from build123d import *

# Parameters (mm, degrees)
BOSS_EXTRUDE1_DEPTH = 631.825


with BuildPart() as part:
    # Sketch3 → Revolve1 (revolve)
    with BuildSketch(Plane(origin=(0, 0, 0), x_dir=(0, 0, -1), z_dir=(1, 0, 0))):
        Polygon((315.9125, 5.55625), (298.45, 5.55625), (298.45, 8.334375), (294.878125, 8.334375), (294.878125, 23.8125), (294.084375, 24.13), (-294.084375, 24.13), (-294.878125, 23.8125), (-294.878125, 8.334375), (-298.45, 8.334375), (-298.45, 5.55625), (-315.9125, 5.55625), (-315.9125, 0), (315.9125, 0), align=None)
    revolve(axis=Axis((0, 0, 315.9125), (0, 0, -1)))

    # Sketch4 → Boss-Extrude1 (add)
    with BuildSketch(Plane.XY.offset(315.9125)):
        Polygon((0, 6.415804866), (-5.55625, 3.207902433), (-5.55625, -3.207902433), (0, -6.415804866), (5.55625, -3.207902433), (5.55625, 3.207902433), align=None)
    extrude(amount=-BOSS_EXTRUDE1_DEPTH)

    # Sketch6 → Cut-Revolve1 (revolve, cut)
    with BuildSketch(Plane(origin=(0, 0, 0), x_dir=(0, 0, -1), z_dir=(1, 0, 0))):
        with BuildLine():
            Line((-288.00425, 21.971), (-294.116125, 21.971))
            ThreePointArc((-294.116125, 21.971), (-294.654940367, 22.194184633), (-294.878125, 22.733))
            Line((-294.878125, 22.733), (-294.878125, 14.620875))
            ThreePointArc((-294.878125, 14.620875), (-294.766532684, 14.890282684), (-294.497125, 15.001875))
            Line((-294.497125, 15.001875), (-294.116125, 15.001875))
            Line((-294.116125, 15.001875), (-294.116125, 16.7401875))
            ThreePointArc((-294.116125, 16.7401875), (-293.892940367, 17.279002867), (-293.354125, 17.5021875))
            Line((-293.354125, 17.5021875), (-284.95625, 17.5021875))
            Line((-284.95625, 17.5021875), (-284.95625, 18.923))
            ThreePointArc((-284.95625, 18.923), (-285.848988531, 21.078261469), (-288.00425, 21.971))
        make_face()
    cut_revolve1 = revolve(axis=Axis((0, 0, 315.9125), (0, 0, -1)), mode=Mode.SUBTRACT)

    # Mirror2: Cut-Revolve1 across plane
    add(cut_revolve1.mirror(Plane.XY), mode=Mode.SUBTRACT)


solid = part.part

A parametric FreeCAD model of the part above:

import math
import FreeCAD as App
import Part
import Sketcher
Q = App.Units.Quantity

doc = App.newDocument("Part")
body = doc.addObject("PartDesign::Body", "Body")

sketch1 = doc.addObject("Sketcher::SketchObject", "Sketch")
body.addObject(sketch1)
sketch1.AttachmentSupport = (doc.YZ_Plane, [""])
sketch1.MapMode = "FlatFace"
sketch1.addGeometry(Part.LineSegment(App.Vector(5.6, -315.9, 0), App.Vector(5.6, -298.4, 0)), False)
sketch1.addGeometry(Part.LineSegment(App.Vector(5.6, -298.4, 0), App.Vector(8.3, -298.4, 0)), False)
sketch1.addGeometry(Part.LineSegment(App.Vector(8.3, -298.4, 0), App.Vector(8.3, -294.9, 0)), False)
sketch1.addGeometry(Part.LineSegment(App.Vector(8.3, -294.9, 0), App.Vector(23.8, -294.9, 0)), False)
sketch1.addGeometry(Part.LineSegment(App.Vector(23.8, -294.9, 0), App.Vector(24.1, -294.1, 0)), False)
sketch1.addGeometry(Part.LineSegment(App.Vector(24.1, -294.1, 0), App.Vector(24.1, 294.1, 0)), False)
sketch1.addGeometry(Part.LineSegment(App.Vector(24.1, 294.1, 0), App.Vector(23.8, 294.9, 0)), False)
sketch1.addGeometry(Part.LineSegment(App.Vector(23.8, 294.9, 0), App.Vector(8.3, 294.9, 0)), False)
sketch1.addGeometry(Part.LineSegment(App.Vector(8.3, 294.9, 0), App.Vector(8.3, 298.4, 0)), False)
sketch1.addGeometry(Part.LineSegment(App.Vector(8.3, 298.4, 0), App.Vector(5.6, 298.4, 0)), False)
sketch1.addGeometry(Part.LineSegment(App.Vector(5.6, 298.4, 0), App.Vector(5.6, 315.9, 0)), False)
sketch1.addGeometry(Part.LineSegment(App.Vector(5.6, 315.9, 0), App.Vector(0, 315.9, 0)), False)
sketch1.addGeometry(Part.LineSegment(App.Vector(0, 315.9, 0), App.Vector(0, -315.9, 0)), False)
sketch1.addGeometry(Part.LineSegment(App.Vector(0, -315.9, 0), App.Vector(5.6, -315.9, 0)), False)
sketch1.addConstraint(Sketcher.Constraint("Coincident", 0, 2, 1, 1))
sketch1.addConstraint(Sketcher.Constraint("Coincident", 1, 2, 2, 1))
sketch1.addConstraint(Sketcher.Constraint("Coincident", 2, 2, 3, 1))
sketch1.addConstraint(Sketcher.Constraint("Coincident", 3, 2, 4, 1))
sketch1.addConstraint(Sketcher.Constraint("Coincident", 4, 2, 5, 1))
sketch1.addConstraint(Sketcher.Constraint("Coincident", 5, 2, 6, 1))
sketch1.addConstraint(Sketcher.Constraint("Coincident", 6, 2, 7, 1))
sketch1.addConstraint(Sketcher.Constraint("Coincident", 7, 2, 8, 1))
sketch1.addConstraint(Sketcher.Constraint("Coincident", 8, 2, 9, 1))
sketch1.addConstraint(Sketcher.Constraint("Coincident", 9, 2, 10, 1))
sketch1.addConstraint(Sketcher.Constraint("Coincident", 10, 2, 11, 1))
sketch1.addConstraint(Sketcher.Constraint("Coincident", 11, 2, 12, 1))
sketch1.addConstraint(Sketcher.Constraint("Coincident", 12, 2, 13, 1))
sketch1.addConstraint(Sketcher.Constraint("Coincident", 13, 2, 0, 1))
sketch1.addConstraint(Sketcher.Constraint("Vertical", 0))
sketch1.addConstraint(Sketcher.Constraint("Horizontal", 1))
sketch1.addConstraint(Sketcher.Constraint("Vertical", 2))
sketch1.addConstraint(Sketcher.Constraint("Horizontal", 3))
sketch1.addConstraint(Sketcher.Constraint("Vertical", 5))
sketch1.addConstraint(Sketcher.Constraint("Horizontal", 7))
sketch1.addConstraint(Sketcher.Constraint("Vertical", 8))
sketch1.addConstraint(Sketcher.Constraint("Horizontal", 9))
sketch1.addConstraint(Sketcher.Constraint("Vertical", 10))
sketch1.addConstraint(Sketcher.Constraint("Horizontal", 11))
sketch1.addConstraint(Sketcher.Constraint("Vertical", 12))
sketch1.addConstraint(Sketcher.Constraint("Horizontal", 13))
sketch1.addConstraint(Sketcher.Constraint("Symmetric", 11, 2, 12, 2, -1, 1))
sketch1.addConstraint(Sketcher.Constraint("Symmetric", 3, 2, 6, 2, -1))
sketch1.addConstraint(Sketcher.Constraint("Symmetric", 1, 2, 8, 2, -1))
sketch1.addConstraint(Sketcher.Constraint("Vertical", 0, 2, 9, 2))
sketch1.addConstraint(Sketcher.Constraint("Equal", 4, 6))
sketch1.addConstraint(Sketcher.Constraint("DistanceX", 1, 1, 1, 2, Q("0.109375 in")))
sketch1.addConstraint(Sketcher.Constraint("DistanceX", 3, 1, 3, 2, Q("0.609375 in")))
sketch1.addConstraint(Sketcher.Constraint("DistanceX", 11, 2, 11, 1, Q("0.21875 in")))
sketch1.addConstraint(Sketcher.Constraint("DistanceY", 0, 1, 0, 2, Q("0.6875 in")))
sketch1.addConstraint(Sketcher.Constraint("DistanceY", 2, 1, 2, 2, Q("0.140625 in")))
sketch1.addConstraint(Sketcher.Constraint("DistanceY", 5, 1, 5, 2, Q("23.15625 in")))
sketch1.addConstraint(Sketcher.Constraint("DistanceY", 12, 2, 12, 1, Q("24.875 in")))
sketch1.addConstraint(Sketcher.Constraint("DistanceX", -1, 1, 4, 2, Q("0.95 in")))
revolution = doc.addObject("PartDesign::Revolution", "Revolution")
body.addObject(revolution)
revolution.Profile = sketch1
revolution.ReferenceAxis = (sketch1, ["V_Axis"])
revolution.Angle = 360

sketch2 = doc.addObject("Sketcher::SketchObject", "Sketch001")
body.addObject(sketch2)
sketch2.AttachmentSupport = (doc.XY_Plane, [""])
sketch2.MapMode = "FlatFace"
sketch2.AttachmentOffset = App.Placement(App.Vector(0, 0, 12.4375 * 25.4), App.Rotation())
sketch2.addGeometry(Part.LineSegment(App.Vector(0, 6, 0), App.Vector(-6, 3, 0)), False)
sketch2.addGeometry(Part.LineSegment(App.Vector(-6, 3, 0), App.Vector(-6, -3, 0)), False)
sketch2.addGeometry(Part.LineSegment(App.Vector(-6, -3, 0), App.Vector(0, -6, 0)), False)
sketch2.addGeometry(Part.LineSegment(App.Vector(0, -6, 0), App.Vector(6, -3, 0)), False)
sketch2.addGeometry(Part.LineSegment(App.Vector(6, -3, 0), App.Vector(6, 3, 0)), False)
sketch2.addGeometry(Part.LineSegment(App.Vector(6, 3, 0), App.Vector(0, 6, 0)), False)
sketch2.addConstraint(Sketcher.Constraint("Coincident", 0, 2, 1, 1))
sketch2.addConstraint(Sketcher.Constraint("Coincident", 1, 2, 2, 1))
sketch2.addConstraint(Sketcher.Constraint("Coincident", 2, 2, 3, 1))
sketch2.addConstraint(Sketcher.Constraint("Coincident", 3, 2, 4, 1))
sketch2.addConstraint(Sketcher.Constraint("Coincident", 4, 2, 5, 1))
sketch2.addConstraint(Sketcher.Constraint("Coincident", 5, 2, 0, 1))
sketch2.addConstraint(Sketcher.Constraint("Vertical", 1))
sketch2.addConstraint(Sketcher.Constraint("Vertical", 4))
sketch2.addConstraint(Sketcher.Constraint("Symmetric", 0, 2, 3, 2, -1, 1))
sketch2.addConstraint(Sketcher.Constraint("Symmetric", 2, 2, 5, 2, -1, 1))
sketch2.addConstraint(Sketcher.Constraint("PointOnObject", 2, 2, -2))
sketch2.addConstraint(Sketcher.Constraint("Parallel", 2, 5))
sketch2.addConstraint(Sketcher.Constraint("Horizontal", 1, 2, 3, 2))
sketch2.addConstraint(Sketcher.Constraint("Angle", 0, Q("-150 deg")))
sketch2.addConstraint(Sketcher.Constraint("DistanceX", 0, 2, -1, 1, Q("0.21875 in")))
sketch2.addConstraint(Sketcher.Constraint("DistanceY", 1, 2, 1, 1, Q("6.415805 mm")))
pad1 = doc.addObject("PartDesign::Pad", "Pad")
body.addObject(pad1)
pad1.Profile = sketch2
pad1.Length = Q("24.875 in")
pad1.Reversed = True

sketch3 = doc.addObject("Sketcher::SketchObject", "Sketch002")
body.addObject(sketch3)
sketch3.AttachmentSupport = (doc.YZ_Plane, [""])
sketch3.MapMode = "FlatFace"
sketch3.addGeometry(Part.LineSegment(App.Vector(21.97, 288, 0), App.Vector(21.97, 294.12, 0)), False)
sketch3.addGeometry(Part.ArcOfCircle(Part.Circle(App.Vector(22.73, 294.12, 0), App.Vector(0, 0, 1), 0.76), math.radians(90), math.radians(180)), False)
sketch3.addGeometry(Part.LineSegment(App.Vector(22.73, 294.88, 0), App.Vector(14.62, 294.88, 0)), False)
sketch3.addGeometry(Part.ArcOfCircle(Part.Circle(App.Vector(14.62, 294.5, 0), App.Vector(0, 0, 1), 0.38), math.radians(0), math.radians(90)), False)
sketch3.addGeometry(Part.LineSegment(App.Vector(15, 294.5, 0), App.Vector(15, 294.12, 0)), False)
sketch3.addGeometry(Part.LineSegment(App.Vector(15, 294.12, 0), App.Vector(16.74, 294.12, 0)), False)
sketch3.addGeometry(Part.ArcOfCircle(Part.Circle(App.Vector(16.74, 293.35, 0), App.Vector(0, 0, 1), 0.76), math.radians(0), math.radians(90)), False)
sketch3.addGeometry(Part.LineSegment(App.Vector(17.5, 293.35, 0), App.Vector(17.5, 284.96, 0)), False)
sketch3.addGeometry(Part.LineSegment(App.Vector(17.5, 284.96, 0), App.Vector(18.92, 284.96, 0)), False)
sketch3.addGeometry(Part.ArcOfCircle(Part.Circle(App.Vector(18.92, 288, 0), App.Vector(0, 0, 1), 3.05), math.radians(-90), math.radians(0)), False)
sketch3.addConstraint(Sketcher.Constraint("Tangent", 0, 2, 1, 2))
sketch3.addConstraint(Sketcher.Constraint("Tangent", 1, 1, 2, 1))
sketch3.addConstraint(Sketcher.Constraint("Tangent", 2, 2, 3, 2))
sketch3.addConstraint(Sketcher.Constraint("Tangent", 3, 1, 4, 1))
sketch3.addConstraint(Sketcher.Constraint("Coincident", 4, 2, 5, 1))
sketch3.addConstraint(Sketcher.Constraint("Tangent", 5, 2, 6, 2))
sketch3.addConstraint(Sketcher.Constraint("Tangent", 6, 1, 7, 1))
sketch3.addConstraint(Sketcher.Constraint("Coincident", 7, 2, 8, 1))
sketch3.addConstraint(Sketcher.Constraint("Tangent", 8, 2, 9, 1))
sketch3.addConstraint(Sketcher.Constraint("Tangent", 9, 2, 0, 1))
sketch3.addConstraint(Sketcher.Constraint("Vertical", 0))
sketch3.addConstraint(Sketcher.Constraint("Horizontal", 2))
sketch3.addConstraint(Sketcher.Constraint("Vertical", 4))
sketch3.addConstraint(Sketcher.Constraint("Horizontal", 5))
sketch3.addConstraint(Sketcher.Constraint("Vertical", 7))
sketch3.addConstraint(Sketcher.Constraint("Horizontal", 8))
sketch3.addConstraint(Sketcher.Constraint("Equal", 1, 6))
sketch3.addConstraint(Sketcher.Constraint("Horizontal", 0, 2, 4, 2))
sketch3.addConstraint(Sketcher.Constraint("Radius", 1, Q("0.03 in")))
sketch3.addConstraint(Sketcher.Constraint("Radius", 9, Q("0.12 in")))
sketch3.addConstraint(Sketcher.Constraint("Radius", 3, Q("0.015 in")))
sketch3.addConstraint(Sketcher.Constraint("DistanceX", -1, 1, 1, 3, Q("0.895 in")))
sketch3.addConstraint(Sketcher.Constraint("DistanceY", -1, 1, 1, 1, Q("11.609375 in")))
sketch3.addConstraint(Sketcher.Constraint("DistanceY", -1, 1, 7, 2, Q("11.21875 in")))
sketch3.addConstraint(Sketcher.Constraint("DistanceX", 2, 2, 2, 1, Q("8.112125 mm")))
sketch3.addConstraint(Sketcher.Constraint("DistanceX", 5, 1, 5, 2, Q("1.738313 mm")))
groove = doc.addObject("PartDesign::Groove", "Groove")
body.addObject(groove)
groove.Profile = sketch3
groove.ReferenceAxis = (sketch3, ["V_Axis"])
groove.Angle = 360
doc.recompute()

mirrored = doc.addObject("PartDesign::Mirrored", "Mirrored")
body.addObject(mirrored)
mirrored.Originals = [groove]
mirrored.MirrorPlane = (doc.XY_Plane, [""])
body.Tip = mirrored

doc.recompute()
